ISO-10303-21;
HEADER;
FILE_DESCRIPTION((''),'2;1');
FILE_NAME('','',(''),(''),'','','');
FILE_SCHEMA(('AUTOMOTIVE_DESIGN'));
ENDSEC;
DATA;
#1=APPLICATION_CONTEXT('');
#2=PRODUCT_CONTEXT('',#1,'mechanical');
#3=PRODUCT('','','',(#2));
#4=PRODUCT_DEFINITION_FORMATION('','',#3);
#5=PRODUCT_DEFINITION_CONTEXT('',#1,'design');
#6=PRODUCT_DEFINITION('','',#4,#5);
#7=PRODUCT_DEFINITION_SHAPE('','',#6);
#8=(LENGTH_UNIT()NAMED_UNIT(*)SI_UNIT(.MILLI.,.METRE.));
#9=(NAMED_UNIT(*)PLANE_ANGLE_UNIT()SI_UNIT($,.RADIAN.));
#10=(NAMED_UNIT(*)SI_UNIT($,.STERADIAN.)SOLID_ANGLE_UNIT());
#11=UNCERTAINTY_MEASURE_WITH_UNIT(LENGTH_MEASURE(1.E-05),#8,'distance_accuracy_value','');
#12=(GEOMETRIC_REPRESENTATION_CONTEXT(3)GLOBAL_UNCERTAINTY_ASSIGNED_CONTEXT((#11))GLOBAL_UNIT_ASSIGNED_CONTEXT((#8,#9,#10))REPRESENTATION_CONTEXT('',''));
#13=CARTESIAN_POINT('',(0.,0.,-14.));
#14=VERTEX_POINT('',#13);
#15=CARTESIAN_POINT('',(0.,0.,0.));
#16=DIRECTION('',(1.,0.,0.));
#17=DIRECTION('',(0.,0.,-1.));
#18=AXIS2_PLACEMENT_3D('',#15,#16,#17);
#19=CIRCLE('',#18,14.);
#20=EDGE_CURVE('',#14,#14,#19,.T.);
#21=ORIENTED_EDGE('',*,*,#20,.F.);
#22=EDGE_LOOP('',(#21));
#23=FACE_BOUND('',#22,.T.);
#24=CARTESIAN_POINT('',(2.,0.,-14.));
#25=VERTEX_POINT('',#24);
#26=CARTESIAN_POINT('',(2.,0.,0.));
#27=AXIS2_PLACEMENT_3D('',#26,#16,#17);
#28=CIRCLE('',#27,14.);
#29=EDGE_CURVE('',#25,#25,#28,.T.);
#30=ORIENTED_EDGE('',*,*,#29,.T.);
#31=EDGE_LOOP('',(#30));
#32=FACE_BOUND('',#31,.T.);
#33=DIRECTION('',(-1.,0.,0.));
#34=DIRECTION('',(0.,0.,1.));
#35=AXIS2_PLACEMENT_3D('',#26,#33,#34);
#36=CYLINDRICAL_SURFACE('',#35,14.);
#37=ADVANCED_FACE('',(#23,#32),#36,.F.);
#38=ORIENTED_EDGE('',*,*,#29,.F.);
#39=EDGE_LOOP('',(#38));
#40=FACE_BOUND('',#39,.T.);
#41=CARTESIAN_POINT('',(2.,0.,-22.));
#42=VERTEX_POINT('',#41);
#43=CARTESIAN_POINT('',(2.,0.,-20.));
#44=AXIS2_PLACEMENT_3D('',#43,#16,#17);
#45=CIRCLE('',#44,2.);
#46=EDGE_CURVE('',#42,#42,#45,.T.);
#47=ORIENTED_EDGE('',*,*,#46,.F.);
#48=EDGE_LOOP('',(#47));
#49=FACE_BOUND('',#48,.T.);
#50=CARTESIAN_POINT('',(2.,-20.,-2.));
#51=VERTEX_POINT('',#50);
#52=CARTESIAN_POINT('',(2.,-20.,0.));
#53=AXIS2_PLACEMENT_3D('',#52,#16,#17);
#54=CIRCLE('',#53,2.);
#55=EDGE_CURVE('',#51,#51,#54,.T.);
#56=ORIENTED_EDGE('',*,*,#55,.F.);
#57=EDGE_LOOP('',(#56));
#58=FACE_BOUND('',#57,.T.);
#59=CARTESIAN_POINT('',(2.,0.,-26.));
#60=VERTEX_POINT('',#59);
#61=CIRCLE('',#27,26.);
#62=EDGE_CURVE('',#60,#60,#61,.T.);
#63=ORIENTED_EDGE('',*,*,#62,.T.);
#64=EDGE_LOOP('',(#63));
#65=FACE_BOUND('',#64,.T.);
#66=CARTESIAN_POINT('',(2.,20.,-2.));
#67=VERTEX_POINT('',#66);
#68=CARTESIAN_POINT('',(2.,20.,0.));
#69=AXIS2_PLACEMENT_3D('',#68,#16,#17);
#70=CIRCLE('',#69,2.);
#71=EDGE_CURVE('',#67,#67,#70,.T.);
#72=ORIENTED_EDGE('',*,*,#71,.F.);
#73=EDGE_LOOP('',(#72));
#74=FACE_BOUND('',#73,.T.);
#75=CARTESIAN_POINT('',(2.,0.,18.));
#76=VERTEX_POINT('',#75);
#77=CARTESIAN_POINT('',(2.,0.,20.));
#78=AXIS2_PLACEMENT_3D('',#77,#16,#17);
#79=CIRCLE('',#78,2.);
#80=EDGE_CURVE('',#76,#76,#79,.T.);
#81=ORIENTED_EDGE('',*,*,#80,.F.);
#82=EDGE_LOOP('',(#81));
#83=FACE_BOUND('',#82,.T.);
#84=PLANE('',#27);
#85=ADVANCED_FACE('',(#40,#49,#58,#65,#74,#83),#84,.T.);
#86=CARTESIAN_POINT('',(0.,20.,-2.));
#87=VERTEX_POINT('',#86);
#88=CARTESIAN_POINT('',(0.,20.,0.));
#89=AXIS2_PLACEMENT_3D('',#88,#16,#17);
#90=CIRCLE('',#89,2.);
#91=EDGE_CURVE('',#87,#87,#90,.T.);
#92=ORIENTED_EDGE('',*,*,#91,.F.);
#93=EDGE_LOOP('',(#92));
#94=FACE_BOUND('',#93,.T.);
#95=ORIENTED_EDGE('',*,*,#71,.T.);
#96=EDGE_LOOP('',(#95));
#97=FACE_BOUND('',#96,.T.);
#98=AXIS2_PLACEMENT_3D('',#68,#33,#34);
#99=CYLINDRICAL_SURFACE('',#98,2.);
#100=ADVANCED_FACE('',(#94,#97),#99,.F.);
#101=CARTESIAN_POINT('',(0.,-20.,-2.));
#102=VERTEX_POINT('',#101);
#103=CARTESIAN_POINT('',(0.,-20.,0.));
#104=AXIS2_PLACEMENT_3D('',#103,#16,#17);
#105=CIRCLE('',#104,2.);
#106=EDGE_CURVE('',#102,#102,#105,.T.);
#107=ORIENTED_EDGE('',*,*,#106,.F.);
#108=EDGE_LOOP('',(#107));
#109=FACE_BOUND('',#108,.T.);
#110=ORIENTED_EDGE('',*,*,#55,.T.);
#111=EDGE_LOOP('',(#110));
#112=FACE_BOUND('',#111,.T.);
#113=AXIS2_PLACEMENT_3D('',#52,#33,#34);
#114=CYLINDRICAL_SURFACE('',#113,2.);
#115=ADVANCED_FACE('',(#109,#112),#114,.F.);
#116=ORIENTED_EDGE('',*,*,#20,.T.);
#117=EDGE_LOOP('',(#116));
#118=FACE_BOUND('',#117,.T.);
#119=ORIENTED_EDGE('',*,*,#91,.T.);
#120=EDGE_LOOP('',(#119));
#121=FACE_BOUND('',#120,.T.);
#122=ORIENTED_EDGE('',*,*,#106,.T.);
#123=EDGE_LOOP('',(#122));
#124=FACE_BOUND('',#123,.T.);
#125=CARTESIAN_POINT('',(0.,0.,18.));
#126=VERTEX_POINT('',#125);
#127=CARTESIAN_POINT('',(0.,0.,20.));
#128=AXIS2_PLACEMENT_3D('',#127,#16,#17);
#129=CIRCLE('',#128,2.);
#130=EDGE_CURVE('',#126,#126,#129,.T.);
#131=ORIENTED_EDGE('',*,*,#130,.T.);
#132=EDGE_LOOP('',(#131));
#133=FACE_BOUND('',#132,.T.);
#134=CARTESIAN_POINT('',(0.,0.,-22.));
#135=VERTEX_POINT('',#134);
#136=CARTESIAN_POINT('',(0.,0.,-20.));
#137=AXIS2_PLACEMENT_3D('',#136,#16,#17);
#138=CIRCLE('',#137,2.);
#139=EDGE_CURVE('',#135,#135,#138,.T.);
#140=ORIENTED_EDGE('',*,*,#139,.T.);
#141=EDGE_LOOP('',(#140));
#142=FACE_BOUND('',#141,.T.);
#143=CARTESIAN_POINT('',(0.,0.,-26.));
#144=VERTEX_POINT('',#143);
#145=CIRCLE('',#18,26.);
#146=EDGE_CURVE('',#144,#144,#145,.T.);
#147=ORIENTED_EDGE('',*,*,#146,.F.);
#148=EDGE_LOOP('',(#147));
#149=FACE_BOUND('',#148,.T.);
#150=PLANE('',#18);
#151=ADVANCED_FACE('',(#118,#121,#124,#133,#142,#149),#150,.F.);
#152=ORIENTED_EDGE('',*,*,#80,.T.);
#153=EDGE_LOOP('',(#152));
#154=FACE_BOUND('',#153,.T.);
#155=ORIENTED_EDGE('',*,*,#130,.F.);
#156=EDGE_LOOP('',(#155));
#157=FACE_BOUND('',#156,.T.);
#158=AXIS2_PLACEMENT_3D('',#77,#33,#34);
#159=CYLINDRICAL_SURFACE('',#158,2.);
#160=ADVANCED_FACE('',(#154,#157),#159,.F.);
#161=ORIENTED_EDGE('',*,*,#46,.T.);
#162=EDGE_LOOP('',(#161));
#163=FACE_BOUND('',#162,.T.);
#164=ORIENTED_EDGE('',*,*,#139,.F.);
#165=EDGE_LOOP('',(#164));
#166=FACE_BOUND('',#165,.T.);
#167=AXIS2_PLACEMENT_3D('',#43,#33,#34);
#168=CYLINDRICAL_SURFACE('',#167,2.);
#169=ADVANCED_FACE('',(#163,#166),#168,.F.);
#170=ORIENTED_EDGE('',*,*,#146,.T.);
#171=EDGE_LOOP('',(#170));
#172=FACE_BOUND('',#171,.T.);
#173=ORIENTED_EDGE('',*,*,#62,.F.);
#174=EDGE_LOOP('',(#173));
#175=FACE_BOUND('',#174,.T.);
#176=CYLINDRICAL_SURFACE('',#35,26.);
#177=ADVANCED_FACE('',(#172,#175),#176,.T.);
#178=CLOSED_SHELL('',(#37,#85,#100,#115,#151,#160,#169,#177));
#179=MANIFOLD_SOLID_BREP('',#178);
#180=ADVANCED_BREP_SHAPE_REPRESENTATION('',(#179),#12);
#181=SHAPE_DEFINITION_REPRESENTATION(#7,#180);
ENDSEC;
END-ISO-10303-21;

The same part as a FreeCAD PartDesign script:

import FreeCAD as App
import Part
import Sketcher

V = App.Vector
Q = App.Units.Quantity

doc = App.newDocument("Part")
body = doc.addObject("PartDesign::Body", "Body")

sketch1 = body.newObject("Sketcher::SketchObject", "Sketch")
sketch1.AttachmentSupport = (doc.getObject("YZ_Plane"), [""])
sketch1.MapMode = "FlatFace"
sketch1.addGeometry([
    Part.Circle(V(0, 0, 0), V(0, 0, 1), 26),
    Part.Circle(V(-20, 0, 0), V(0, 0, 1), 2),
    Part.Circle(V(0, 20, 0), V(0, 0, 1), 2),
    Part.Circle(V(0, 0, 0), V(0, 0, 1), 14),
    Part.Circle(V(0, -20, 0), V(0, 0, 1), 2),
    Part.Circle(V(20, 0, 0), V(0, 0, 1), 2),
], False)
sketch1.addConstraint([
    Sketcher.Constraint("Coincident", 0, 3, -1, 1),
    Sketcher.Constraint("Coincident", 3, 3, -1, 1),
    Sketcher.Constraint("Equal", 1, 2),
    Sketcher.Constraint("Equal", 2, 4),
    Sketcher.Constraint("Equal", 4, 5),
    Sketcher.Constraint("Symmetric", 2, 3, 4, 3, -1, 1),
    Sketcher.Constraint("Symmetric", 1, 3, 5, 3, -1, 1),
    Sketcher.Constraint("PointOnObject", 1, 3, -1),
    Sketcher.Constraint("PointOnObject", 2, 3, -2),
    Sketcher.Constraint("Diameter", 0, Q("52 mm")),
    Sketcher.Constraint("Diameter", 1, Q("4 mm")),
    Sketcher.Constraint("Diameter", 3, Q("28 mm")),
    Sketcher.Constraint("DistanceX", 1, 3, -1, 1, Q("20 mm")),
    Sketcher.Constraint("DistanceY", -1, 1, 2, 3, Q("20 mm")),
])
pad1 = body.newObject("PartDesign::Pad", "Pad")
pad1.Profile = sketch1
pad1.Length = 2

doc.recompute()
